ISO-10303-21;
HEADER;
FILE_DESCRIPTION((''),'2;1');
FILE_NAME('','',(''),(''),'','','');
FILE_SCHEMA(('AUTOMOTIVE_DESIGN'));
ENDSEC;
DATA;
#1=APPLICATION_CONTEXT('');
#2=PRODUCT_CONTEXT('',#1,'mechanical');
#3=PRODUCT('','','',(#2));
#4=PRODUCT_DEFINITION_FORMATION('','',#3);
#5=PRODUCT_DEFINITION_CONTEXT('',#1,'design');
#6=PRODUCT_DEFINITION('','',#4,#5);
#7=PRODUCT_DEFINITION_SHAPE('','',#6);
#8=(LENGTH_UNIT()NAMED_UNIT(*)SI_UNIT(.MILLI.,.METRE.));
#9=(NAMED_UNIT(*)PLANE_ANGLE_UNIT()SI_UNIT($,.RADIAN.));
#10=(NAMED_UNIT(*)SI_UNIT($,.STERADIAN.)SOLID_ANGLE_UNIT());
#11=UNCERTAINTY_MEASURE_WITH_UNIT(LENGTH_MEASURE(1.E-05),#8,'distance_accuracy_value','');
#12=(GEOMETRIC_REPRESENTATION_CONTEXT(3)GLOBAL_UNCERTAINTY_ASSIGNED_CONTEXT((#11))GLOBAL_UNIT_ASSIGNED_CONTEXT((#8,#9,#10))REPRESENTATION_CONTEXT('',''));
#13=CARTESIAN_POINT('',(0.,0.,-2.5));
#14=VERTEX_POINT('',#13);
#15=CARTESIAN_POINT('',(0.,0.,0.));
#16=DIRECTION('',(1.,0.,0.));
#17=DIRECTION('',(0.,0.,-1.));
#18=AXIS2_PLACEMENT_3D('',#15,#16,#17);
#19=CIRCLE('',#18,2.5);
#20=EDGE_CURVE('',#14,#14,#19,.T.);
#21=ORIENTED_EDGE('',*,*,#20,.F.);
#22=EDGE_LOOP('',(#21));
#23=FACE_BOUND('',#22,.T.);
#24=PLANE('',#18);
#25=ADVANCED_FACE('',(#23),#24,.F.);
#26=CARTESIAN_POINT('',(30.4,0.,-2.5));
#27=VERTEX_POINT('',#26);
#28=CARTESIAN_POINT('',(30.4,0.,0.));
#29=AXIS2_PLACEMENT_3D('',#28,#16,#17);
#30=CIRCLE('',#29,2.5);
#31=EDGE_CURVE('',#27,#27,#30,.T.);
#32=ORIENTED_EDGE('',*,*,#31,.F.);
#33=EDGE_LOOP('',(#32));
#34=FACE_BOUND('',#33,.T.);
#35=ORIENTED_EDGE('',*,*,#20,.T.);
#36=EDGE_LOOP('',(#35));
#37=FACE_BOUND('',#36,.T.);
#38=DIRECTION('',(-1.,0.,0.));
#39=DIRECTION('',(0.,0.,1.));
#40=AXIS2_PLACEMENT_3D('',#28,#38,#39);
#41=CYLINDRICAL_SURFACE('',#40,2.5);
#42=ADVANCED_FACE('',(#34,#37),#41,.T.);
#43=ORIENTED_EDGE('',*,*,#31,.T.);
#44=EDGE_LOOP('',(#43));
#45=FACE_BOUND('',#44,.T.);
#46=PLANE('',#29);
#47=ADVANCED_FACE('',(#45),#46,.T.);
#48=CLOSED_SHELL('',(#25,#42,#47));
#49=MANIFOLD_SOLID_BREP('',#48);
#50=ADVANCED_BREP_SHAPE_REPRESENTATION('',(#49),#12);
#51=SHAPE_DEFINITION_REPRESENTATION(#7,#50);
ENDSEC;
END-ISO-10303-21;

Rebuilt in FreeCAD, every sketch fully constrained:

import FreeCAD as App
import Part
import Sketcher
Q = App.Units.Quantity

doc = App.newDocument("Part")
body = doc.addObject("PartDesign::Body", "Body")

sketch1 = body.newObject("Sketcher::SketchObject", "Sketch")
sketch1.AttachmentSupport = (doc.getObject("YZ_Plane"), [""])
sketch1.MapMode = "FlatFace"
sketch1.addGeometry(Part.Circle(App.Vector(0, 0, 0), App.Vector(0, 0, 1), 2.5), False)
sketch1.addConstraint([
    Sketcher.Constraint("Coincident", 0, 3, -1, 1),
    Sketcher.Constraint("Diameter", 0, Q("5 mm")),
])
pad1 = body.newObject("PartDesign::Pad", "Pad")
pad1.Profile = sketch1
pad1.Length = 30.4

doc.recompute()
